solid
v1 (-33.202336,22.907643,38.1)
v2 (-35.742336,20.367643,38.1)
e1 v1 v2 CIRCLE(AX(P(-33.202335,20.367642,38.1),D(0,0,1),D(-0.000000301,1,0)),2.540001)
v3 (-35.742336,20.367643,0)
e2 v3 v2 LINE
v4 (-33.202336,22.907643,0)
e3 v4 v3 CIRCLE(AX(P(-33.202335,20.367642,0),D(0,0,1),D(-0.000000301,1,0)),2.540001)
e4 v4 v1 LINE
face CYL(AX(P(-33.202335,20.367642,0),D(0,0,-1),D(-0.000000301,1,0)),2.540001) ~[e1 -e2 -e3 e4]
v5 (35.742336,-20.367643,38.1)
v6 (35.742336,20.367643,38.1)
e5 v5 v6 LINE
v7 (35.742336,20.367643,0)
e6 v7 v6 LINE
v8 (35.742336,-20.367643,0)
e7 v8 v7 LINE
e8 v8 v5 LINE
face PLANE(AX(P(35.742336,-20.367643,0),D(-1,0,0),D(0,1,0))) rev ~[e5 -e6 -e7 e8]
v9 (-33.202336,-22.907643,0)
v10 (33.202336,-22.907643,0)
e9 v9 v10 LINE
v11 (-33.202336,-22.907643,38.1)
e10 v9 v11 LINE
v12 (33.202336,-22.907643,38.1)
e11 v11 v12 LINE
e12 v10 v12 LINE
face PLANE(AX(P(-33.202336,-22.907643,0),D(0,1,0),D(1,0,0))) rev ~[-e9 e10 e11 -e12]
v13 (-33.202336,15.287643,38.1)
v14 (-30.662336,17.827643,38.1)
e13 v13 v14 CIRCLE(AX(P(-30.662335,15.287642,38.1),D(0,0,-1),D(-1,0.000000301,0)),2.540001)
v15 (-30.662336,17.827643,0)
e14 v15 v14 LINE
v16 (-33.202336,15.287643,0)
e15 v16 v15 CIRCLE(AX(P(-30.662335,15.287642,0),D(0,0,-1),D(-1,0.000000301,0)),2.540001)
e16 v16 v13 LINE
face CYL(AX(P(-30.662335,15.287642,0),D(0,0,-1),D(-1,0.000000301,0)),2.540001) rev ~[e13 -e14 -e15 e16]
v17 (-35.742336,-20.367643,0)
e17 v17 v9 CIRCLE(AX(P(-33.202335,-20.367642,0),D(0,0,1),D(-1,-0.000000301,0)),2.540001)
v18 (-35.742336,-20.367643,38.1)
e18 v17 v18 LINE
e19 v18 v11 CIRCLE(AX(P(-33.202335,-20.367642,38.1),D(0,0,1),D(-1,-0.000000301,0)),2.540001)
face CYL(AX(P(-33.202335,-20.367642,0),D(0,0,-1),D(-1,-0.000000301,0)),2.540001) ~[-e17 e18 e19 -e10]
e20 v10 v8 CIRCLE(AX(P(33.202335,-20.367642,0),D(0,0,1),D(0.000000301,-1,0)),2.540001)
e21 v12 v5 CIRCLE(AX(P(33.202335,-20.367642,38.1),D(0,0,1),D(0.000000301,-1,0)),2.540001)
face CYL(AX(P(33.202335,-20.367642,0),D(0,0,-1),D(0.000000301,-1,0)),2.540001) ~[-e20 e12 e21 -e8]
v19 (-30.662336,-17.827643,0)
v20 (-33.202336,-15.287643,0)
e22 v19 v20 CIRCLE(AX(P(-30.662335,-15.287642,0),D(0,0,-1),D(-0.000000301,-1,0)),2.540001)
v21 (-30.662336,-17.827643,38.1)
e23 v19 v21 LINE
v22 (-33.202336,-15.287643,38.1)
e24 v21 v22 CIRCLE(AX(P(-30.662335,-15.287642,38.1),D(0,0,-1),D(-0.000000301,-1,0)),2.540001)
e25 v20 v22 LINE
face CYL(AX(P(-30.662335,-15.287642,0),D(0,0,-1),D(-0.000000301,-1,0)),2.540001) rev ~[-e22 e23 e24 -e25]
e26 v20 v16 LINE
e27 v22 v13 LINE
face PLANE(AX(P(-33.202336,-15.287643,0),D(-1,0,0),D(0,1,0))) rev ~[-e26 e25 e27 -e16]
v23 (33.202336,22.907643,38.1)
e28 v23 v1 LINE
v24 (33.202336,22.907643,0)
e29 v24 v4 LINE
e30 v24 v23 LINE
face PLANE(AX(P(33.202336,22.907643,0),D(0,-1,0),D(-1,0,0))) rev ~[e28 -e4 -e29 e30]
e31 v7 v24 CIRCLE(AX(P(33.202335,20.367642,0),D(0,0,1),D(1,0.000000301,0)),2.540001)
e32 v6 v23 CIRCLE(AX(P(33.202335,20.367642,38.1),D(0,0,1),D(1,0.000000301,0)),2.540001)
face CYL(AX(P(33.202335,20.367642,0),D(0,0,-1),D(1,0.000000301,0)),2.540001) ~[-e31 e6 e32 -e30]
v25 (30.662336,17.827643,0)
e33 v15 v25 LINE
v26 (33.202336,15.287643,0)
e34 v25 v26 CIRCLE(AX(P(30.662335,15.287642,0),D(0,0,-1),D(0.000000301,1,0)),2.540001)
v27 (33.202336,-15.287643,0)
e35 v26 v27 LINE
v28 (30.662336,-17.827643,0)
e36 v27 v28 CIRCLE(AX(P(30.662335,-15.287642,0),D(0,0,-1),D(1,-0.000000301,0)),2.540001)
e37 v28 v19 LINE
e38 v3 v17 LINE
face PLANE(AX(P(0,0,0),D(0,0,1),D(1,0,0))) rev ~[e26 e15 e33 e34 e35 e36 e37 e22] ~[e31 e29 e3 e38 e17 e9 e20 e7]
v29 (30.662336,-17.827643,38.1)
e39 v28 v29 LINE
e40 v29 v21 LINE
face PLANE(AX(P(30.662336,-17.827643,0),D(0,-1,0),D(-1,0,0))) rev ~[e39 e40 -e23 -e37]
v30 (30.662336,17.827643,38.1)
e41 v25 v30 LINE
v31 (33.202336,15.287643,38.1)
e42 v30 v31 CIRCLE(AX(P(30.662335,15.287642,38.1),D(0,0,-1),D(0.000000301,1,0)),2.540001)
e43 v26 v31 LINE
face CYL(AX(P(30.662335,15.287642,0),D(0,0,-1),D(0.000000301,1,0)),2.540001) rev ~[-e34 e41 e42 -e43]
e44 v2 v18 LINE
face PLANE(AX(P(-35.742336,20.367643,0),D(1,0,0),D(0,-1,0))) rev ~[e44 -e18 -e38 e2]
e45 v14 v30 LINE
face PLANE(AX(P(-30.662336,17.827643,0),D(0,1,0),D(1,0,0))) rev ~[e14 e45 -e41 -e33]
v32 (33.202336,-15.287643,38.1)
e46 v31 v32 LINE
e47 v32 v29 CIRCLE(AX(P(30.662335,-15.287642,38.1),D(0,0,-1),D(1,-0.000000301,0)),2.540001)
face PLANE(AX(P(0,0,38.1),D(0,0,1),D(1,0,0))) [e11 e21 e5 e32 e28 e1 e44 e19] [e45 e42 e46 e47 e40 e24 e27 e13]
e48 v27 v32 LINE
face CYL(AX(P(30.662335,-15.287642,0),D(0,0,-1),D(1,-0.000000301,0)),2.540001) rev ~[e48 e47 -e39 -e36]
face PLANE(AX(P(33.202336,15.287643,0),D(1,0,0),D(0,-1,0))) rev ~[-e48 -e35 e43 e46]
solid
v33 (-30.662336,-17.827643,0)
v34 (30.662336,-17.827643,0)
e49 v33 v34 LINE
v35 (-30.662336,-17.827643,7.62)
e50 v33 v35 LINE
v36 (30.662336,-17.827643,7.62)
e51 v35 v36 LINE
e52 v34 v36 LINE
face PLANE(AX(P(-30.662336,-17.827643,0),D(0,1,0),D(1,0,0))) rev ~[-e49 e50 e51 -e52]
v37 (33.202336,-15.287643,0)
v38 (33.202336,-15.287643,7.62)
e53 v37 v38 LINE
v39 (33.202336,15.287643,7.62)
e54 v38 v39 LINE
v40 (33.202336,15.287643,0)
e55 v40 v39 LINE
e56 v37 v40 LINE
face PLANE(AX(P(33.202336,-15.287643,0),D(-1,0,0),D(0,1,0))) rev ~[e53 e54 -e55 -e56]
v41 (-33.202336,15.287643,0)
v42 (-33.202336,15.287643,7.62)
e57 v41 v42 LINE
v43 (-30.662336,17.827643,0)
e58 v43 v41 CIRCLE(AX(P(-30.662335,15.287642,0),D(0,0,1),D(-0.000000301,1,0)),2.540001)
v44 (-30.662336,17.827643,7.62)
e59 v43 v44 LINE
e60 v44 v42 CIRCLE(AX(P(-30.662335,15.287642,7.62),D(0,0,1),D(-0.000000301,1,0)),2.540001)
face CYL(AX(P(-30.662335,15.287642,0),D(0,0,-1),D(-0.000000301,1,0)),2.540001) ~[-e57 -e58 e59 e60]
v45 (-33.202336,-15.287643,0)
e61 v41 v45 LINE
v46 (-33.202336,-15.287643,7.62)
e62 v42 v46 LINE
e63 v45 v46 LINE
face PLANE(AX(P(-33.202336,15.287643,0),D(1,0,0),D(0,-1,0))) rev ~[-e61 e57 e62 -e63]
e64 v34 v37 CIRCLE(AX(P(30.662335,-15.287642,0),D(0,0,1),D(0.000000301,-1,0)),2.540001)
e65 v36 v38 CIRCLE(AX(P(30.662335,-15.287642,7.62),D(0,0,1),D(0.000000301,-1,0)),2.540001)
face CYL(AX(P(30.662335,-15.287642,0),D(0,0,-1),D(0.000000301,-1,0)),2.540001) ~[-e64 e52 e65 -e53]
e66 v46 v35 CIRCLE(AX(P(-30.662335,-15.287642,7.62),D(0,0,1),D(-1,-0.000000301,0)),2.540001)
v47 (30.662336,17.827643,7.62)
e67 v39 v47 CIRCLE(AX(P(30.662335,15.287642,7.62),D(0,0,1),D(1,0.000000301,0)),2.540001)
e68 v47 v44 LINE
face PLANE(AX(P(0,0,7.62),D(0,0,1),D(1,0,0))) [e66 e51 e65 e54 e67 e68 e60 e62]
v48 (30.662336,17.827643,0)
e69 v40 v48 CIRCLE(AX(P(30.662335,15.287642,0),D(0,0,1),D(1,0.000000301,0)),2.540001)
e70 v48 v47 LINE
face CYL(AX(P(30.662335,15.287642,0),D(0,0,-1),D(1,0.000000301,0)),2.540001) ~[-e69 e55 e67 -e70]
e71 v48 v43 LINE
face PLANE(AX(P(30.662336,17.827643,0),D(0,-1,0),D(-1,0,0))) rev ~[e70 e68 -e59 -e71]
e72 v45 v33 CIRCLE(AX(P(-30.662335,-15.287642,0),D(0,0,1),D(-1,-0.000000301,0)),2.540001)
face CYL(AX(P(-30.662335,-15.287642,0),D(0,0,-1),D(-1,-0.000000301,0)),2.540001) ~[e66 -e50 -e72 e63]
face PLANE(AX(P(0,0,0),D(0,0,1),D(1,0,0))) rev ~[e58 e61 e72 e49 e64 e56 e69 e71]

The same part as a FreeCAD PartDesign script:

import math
import FreeCAD as App
import Part
import Sketcher
from FreeCAD import Vector
Q = App.Units.Quantity

doc = App.newDocument("Part")
body = doc.addObject("PartDesign::Body", "Body")

# Sketch on XY plane
sketch1 = doc.addObject("Sketcher::SketchObject", "Sketch")
body.addObject(sketch1)
sketch1.AttachmentSupport = (doc.XY_Plane, [""])
sketch1.MapMode = "FlatFace"
sketch1.addGeometry(Part.LineSegment(Vector(-30.662336, -17.827643, 0), Vector(30.662336, -17.827643, 0)), False)
sketch1.addGeometry(Part.ArcOfCircle(Part.Circle(Vector(30.662335, -15.287642, 0), Vector(0, 0, 1), 2.540001), math.radians(-89.999983), math.radians(-0.000017)), False)
sketch1.addGeometry(Part.LineSegment(Vector(33.202336, -15.287643, 0), Vector(33.202336, 15.287643, 0)), False)
sketch1.addGeometry(Part.ArcOfCircle(Part.Circle(Vector(30.662335, 15.287642, 0), Vector(0, 0, 1), 2.540001), math.radians(0.000017), math.radians(89.999983)), False)
sketch1.addGeometry(Part.LineSegment(Vector(30.662336, 17.827643, 0), Vector(-30.662336, 17.827643, 0)), False)
sketch1.addGeometry(Part.ArcOfCircle(Part.Circle(Vector(-30.662335, 15.287642, 0), Vector(0, 0, 1), 2.540001), math.radians(90.000017), math.radians(179.999983)), False)
sketch1.addGeometry(Part.LineSegment(Vector(-33.202336, 15.287643, 0), Vector(-33.202336, -15.287643, 0)), False)
sketch1.addGeometry(Part.ArcOfCircle(Part.Circle(Vector(-30.662335, -15.287642, 0), Vector(0, 0, 1), 2.540001), math.radians(-179.999983), math.radians(-90.000017)), False)
sketch1.addConstraint(Sketcher.Constraint("Tangent", 0, 2, 1, 1))
sketch1.addConstraint(Sketcher.Constraint("Tangent", 1, 2, 2, 1))
sketch1.addConstraint(Sketcher.Constraint("Tangent", 2, 2, 3, 1))
sketch1.addConstraint(Sketcher.Constraint("Tangent", 3, 2, 4, 1))
sketch1.addConstraint(Sketcher.Constraint("Tangent", 4, 2, 5, 1))
sketch1.addConstraint(Sketcher.Constraint("Tangent", 5, 2, 6, 1))
sketch1.addConstraint(Sketcher.Constraint("Tangent", 6, 2, 7, 1))
sketch1.addConstraint(Sketcher.Constraint("Tangent", 7, 2, 0, 1))
sketch1.addConstraint(Sketcher.Constraint("Horizontal", 0))
sketch1.addConstraint(Sketcher.Constraint("Vertical", 2))
sketch1.addConstraint(Sketcher.Constraint("Horizontal", 4))
sketch1.addConstraint(Sketcher.Constraint("Vertical", 6))
sketch1.addConstraint(Sketcher.Constraint("Equal", 1, 3))
sketch1.addConstraint(Sketcher.Constraint("Equal", 3, 5))
sketch1.addConstraint(Sketcher.Constraint("Equal", 5, 7))
sketch1.addConstraint(Sketcher.Constraint("Symmetric", 1, 3, 5, 3, -1, 1))
sketch1.addConstraint(Sketcher.Constraint("Radius", 1, Q("0.1 in")))
sketch1.addConstraint(Sketcher.Constraint("DistanceX", 0, 1, 0, 2, Q("61.324672 mm")))
sketch1.addConstraint(Sketcher.Constraint("DistanceY", 2, 1, 2, 2, Q("30.575286 mm")))
pad1 = doc.addObject("PartDesign::Pad", "Pad")
body.addObject(pad1)
pad1.Profile = sketch1
pad1.Length = Q("0.3 in")
body2 = doc.addObject("PartDesign::Body", "Body001")

# Sketch on XY plane
sketch2 = doc.addObject("Sketcher::SketchObject", "Sketch001")
body2.addObject(sketch2)
sketch2.AttachmentSupport = (doc.getObject("XY_Plane001"), [""])
sketch2.MapMode = "FlatFace"
sketch2.addGeometry(Part.LineSegment(Vector(-33.202336, -22.907643, 0), Vector(33.202336, -22.907643, 0)), False)
sketch2.addGeometry(Part.ArcOfCircle(Part.Circle(Vector(33.202335, -20.367642, 0), Vector(0, 0, 1), 2.540001), math.radians(-89.999983), math.radians(-0.000017)), False)
sketch2.addGeometry(Part.LineSegment(Vector(35.742336, -20.367643, 0), Vector(35.742336, 20.367643, 0)), False)
sketch2.addGeometry(Part.ArcOfCircle(Part.Circle(Vector(33.202335, 20.367642, 0), Vector(0, 0, 1), 2.540001), math.radians(0.000017), math.radians(89.999983)), False)
sketch2.addGeometry(Part.LineSegment(Vector(33.202336, 22.907643, 0), Vector(-33.202336, 22.907643, 0)), False)
sketch2.addGeometry(Part.ArcOfCircle(Part.Circle(Vector(-33.202335, 20.367642, 0), Vector(0, 0, 1), 2.540001), math.radians(90.000017), math.radians(179.999983)), False)
sketch2.addGeometry(Part.LineSegment(Vector(-35.742336, 20.367643, 0), Vector(-35.742336, -20.367643, 0)), False)
sketch2.addGeometry(Part.ArcOfCircle(Part.Circle(Vector(-33.202335, -20.367642, 0), Vector(0, 0, 1), 2.540001), math.radians(-179.999983), math.radians(-90.000017)), False)
sketch2.addGeometry(Part.LineSegment(Vector(33.202336, 15.287643, 0), Vector(33.202336, -15.287643, 0)), False)
sketch2.addGeometry(Part.ArcOfCircle(Part.Circle(Vector(30.662335, -15.287642, 0), Vector(0, 0, 1), 2.540001), math.radians(-89.999983), math.radians(-0.000017)), False)
sketch2.addGeometry(Part.LineSegment(Vector(30.662336, -17.827643, 0), Vector(-30.662336, -17.827643, 0)), False)
sketch2.addGeometry(Part.ArcOfCircle(Part.Circle(Vector(-30.662335, -15.287642, 0), Vector(0, 0, 1), 2.540001), math.radians(-179.999983), math.radians(-90.000017)), False)
sketch2.addGeometry(Part.LineSegment(Vector(-33.202336, -15.287643, 0), Vector(-33.202336, 15.287643, 0)), False)
sketch2.addGeometry(Part.ArcOfCircle(Part.Circle(Vector(-30.662335, 15.287642, 0), Vector(0, 0, 1), 2.540001), math.radians(90.000017), math.radians(179.999983)), False)
sketch2.addGeometry(Part.LineSegment(Vector(-30.662336, 17.827643, 0), Vector(30.662336, 17.827643, 0)), False)
sketch2.addGeometry(Part.ArcOfCircle(Part.Circle(Vector(30.662335, 15.287642, 0), Vector(0, 0, 1), 2.540001), math.radians(0.000017), math.radians(89.999983)), False)
sketch2.addConstraint(Sketcher.Constraint("Tangent", 0, 2, 1, 1))
sketch2.addConstraint(Sketcher.Constraint("Tangent", 1, 2, 2, 1))
sketch2.addConstraint(Sketcher.Constraint("Tangent", 2, 2, 3, 1))
sketch2.addConstraint(Sketcher.Constraint("Tangent", 3, 2, 4, 1))
sketch2.addConstraint(Sketcher.Constraint("Tangent", 4, 2, 5, 1))
sketch2.addConstraint(Sketcher.Constraint("Tangent", 5, 2, 6, 1))
sketch2.addConstraint(Sketcher.Constraint("Tangent", 6, 2, 7, 1))
sketch2.addConstraint(Sketcher.Constraint("Tangent", 7, 2, 0, 1))
sketch2.addConstraint(Sketcher.Constraint("Tangent", 8, 2, 9, 2))
sketch2.addConstraint(Sketcher.Constraint("Tangent", 9, 1, 10, 1))
sketch2.addConstraint(Sketcher.Constraint("Tangent", 10, 2, 11, 2))
sketch2.addConstraint(Sketcher.Constraint("Tangent", 11, 1, 12, 1))
sketch2.addConstraint(Sketcher.Constraint("Tangent", 12, 2, 13, 2))
sketch2.addConstraint(Sketcher.Constraint("Tangent", 13, 1, 14, 1))
sketch2.addConstraint(Sketcher.Constraint("Tangent", 14, 2, 15, 2))
sketch2.addConstraint(Sketcher.Constraint("Tangent", 15, 1, 8, 1))
sketch2.addConstraint(Sketcher.Constraint("Horizontal", 0))
sketch2.addConstraint(Sketcher.Constraint("Vertical", 2))
sketch2.addConstraint(Sketcher.Constraint("Horizontal", 4))
sketch2.addConstraint(Sketcher.Constraint("Vertical", 6))
sketch2.addConstraint(Sketcher.Constraint("Vertical", 8))
sketch2.addConstraint(Sketcher.Constraint("Horizontal", 10))
sketch2.addConstraint(Sketcher.Constraint("Vertical", 12))
sketch2.addConstraint(Sketcher.Constraint("Horizontal", 14))
sketch2.addConstraint(Sketcher.Constraint("Equal", 1, 3))
sketch2.addConstraint(Sketcher.Constraint("Equal", 3, 5))
sketch2.addConstraint(Sketcher.Constraint("Equal", 5, 7))
sketch2.addConstraint(Sketcher.Constraint("Equal", 7, 9))
sketch2.addConstraint(Sketcher.Constraint("Equal", 9, 11))
sketch2.addConstraint(Sketcher.Constraint("Equal", 11, 13))
sketch2.addConstraint(Sketcher.Constraint("Equal", 13, 15))
sketch2.addConstraint(Sketcher.Constraint("Symmetric", 1, 3, 5, 3, -1, 1))
sketch2.addConstraint(Sketcher.Constraint("Symmetric", 9, 3, 13, 3, -1, 1))
sketch2.addConstraint(Sketcher.Constraint("Vertical", 3, 2, 8, 2))
sketch2.addConstraint(Sketcher.Constraint("Radius", 1, Q("0.1 in")))
sketch2.addConstraint(Sketcher.Constraint("DistanceY", 1, 3, 9, 3, Q("0.2 in")))
sketch2.addConstraint(Sketcher.Constraint("DistanceX", 0, 1, 0, 2, Q("66.404672 mm")))
sketch2.addConstraint(Sketcher.Constraint("DistanceY", 2, 1, 2, 2, Q("40.735286 mm")))
pad2 = doc.addObject("PartDesign::Pad", "Pad001")
body2.addObject(pad2)
pad2.Profile = sketch2
pad2.Length = Q("1.5 in")

doc.recompute()
